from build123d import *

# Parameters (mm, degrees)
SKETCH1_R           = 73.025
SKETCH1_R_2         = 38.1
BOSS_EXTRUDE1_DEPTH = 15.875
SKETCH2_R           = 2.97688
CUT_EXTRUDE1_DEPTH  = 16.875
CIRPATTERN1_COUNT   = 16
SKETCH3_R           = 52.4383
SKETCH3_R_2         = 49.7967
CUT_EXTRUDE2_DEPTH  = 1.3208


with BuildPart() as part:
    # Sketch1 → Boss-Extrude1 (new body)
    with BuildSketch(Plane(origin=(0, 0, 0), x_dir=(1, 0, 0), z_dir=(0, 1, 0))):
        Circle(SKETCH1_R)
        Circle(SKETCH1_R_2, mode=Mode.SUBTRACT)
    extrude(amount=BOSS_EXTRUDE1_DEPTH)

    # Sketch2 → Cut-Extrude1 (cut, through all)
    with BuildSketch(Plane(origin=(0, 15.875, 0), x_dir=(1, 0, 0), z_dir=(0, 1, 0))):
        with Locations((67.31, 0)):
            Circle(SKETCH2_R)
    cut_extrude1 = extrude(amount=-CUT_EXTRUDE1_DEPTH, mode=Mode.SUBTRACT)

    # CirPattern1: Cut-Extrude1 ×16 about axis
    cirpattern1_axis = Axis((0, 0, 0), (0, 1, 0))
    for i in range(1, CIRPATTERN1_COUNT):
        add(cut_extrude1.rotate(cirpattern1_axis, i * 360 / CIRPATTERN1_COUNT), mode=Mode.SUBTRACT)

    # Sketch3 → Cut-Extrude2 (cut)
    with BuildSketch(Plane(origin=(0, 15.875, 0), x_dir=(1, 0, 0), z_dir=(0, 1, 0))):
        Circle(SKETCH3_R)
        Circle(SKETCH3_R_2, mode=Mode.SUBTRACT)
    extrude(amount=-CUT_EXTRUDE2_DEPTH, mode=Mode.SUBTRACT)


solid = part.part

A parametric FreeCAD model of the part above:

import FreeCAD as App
import Part
import Sketcher
Q = App.Units.Quantity

doc = App.newDocument("Part")
body = doc.addObject("PartDesign::Body", "Body")

sketch1 = doc.addObject("Sketcher::SketchObject", "Sketch")
body.addObject(sketch1)
sketch1.AttachmentSupport = (doc.XZ_Plane, [""])
sketch1.MapMode = "FlatFace"
sketch1.addGeometry(Part.Circle(App.Vector(0, 0, 0), App.Vector(0, 0, 1), 73), False)
sketch1.addGeometry(Part.Circle(App.Vector(0, 0, 0), App.Vector(0, 0, 1), 38), False)
sketch1.addConstraint(Sketcher.Constraint("Coincident", 0, 3, -1, 1))
sketch1.addConstraint(Sketcher.Constraint("Coincident", 1, 3, -1, 1))
sketch1.addConstraint(Sketcher.Constraint("Diameter", 1, Q("3 in")))
sketch1.addConstraint(Sketcher.Constraint("Diameter", 0, Q("5.75 in")))
pad1 = doc.addObject("PartDesign::Pad", "Pad")
body.addObject(pad1)
pad1.Profile = sketch1
pad1.Length = Q("0.625 in")
pad1.Reversed = True

sketch2 = doc.addObject("Sketcher::SketchObject", "Sketch001")
body.addObject(sketch2)
sketch2.AttachmentSupport = (doc.XZ_Plane, [""])
sketch2.MapMode = "FlatFace"
sketch2.AttachmentOffset = App.Placement(App.Vector(0, 0, -0.625 * 25.4), App.Rotation())
sketch2.addGeometry(Part.Circle(App.Vector(67.3, 0, 0), App.Vector(0, 0, 1), 3), False)
sketch2.addConstraint(Sketcher.Constraint("PointOnObject", 0, 3, -1))
sketch2.addConstraint(Sketcher.Constraint("Diameter", 0, Q("0.2344 in")))
sketch2.addConstraint(Sketcher.Constraint("DistanceX", -1, 1, 0, 3, Q("2.65 in")))
pocket1 = doc.addObject("PartDesign::Pocket", "Pocket")
body.addObject(pocket1)
pocket1.Profile = sketch2
pocket1.Type = "ThroughAll"
pocket1.Reversed = True
doc.recompute()

polarpattern = doc.addObject("PartDesign::PolarPattern", "PolarPattern")
body.addObject(polarpattern)
polarpattern.Originals = [pocket1]
polarpattern.Axis = (doc.Y_Axis, [""])
polarpattern.Angle = 360
polarpattern.Occurrences = 16
body.Tip = polarpattern

sketch3 = doc.addObject("Sketcher::SketchObject", "Sketch002")
body.addObject(sketch3)
sketch3.AttachmentSupport = (doc.XZ_Plane, [""])
sketch3.MapMode = "FlatFace"
sketch3.AttachmentOffset = App.Placement(App.Vector(0, 0, -0.625 * 25.4), App.Rotation())
sketch3.addGeometry(Part.Circle(App.Vector(0, 0, 0), App.Vector(0, 0, 1), 52), False)
sketch3.addGeometry(Part.Circle(App.Vector(0, 0, 0), App.Vector(0, 0, 1), 50), False)
sketch3.addConstraint(Sketcher.Constraint("Coincident", 0, 3, -1, 1))
sketch3.addConstraint(Sketcher.Constraint("Coincident", 1, 3, -1, 1))
sketch3.addConstraint(Sketcher.Constraint("Diameter", 0, Q("4.129 in")))
sketch3.addConstraint(Sketcher.Constraint("Diameter", 1, Q("3.921 in")))
pocket2 = doc.addObject("PartDesign::Pocket", "Pocket001")
body.addObject(pocket2)
pocket2.Profile = sketch3
pocket2.Length = Q("0.052 in")
pocket2.Reversed = True

doc.recompute()
